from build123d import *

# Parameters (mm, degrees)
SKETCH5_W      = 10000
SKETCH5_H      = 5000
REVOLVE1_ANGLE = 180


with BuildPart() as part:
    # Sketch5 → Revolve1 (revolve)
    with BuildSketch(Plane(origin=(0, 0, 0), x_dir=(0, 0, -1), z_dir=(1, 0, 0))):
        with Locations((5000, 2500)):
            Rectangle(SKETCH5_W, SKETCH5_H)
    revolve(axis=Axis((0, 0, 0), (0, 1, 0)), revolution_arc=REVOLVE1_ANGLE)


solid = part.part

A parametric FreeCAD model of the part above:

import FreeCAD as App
import Part
import Sketcher
from FreeCAD import Vector

doc = App.newDocument("Part")
body = doc.addObject("PartDesign::Body", "Body")

# Sketch on YZ plane
sketch1 = body.newObject("Sketcher::SketchObject", "Sketch")
sketch1.AttachmentSupport = (doc.getObject("YZ_Plane"), [""])
sketch1.MapMode = "FlatFace"
sketch1.addGeometry([
    Part.LineSegment(Vector(5000, 0, 0), Vector(0, 0, 0)),
    Part.LineSegment(Vector(0, 0, 0), Vector(0, -10000, 0)),
    Part.LineSegment(Vector(0, -10000, 0), Vector(5000, -10000, 0)),
    Part.LineSegment(Vector(5000, -10000, 0), Vector(5000, 0, 0)),
], False)
sketch1.addConstraint([
    Sketcher.Constraint("Coincident", 0, 2, 1, 1),
    Sketcher.Constraint("Coincident", 1, 2, 2, 1),
    Sketcher.Constraint("Coincident", 2, 2, 3, 1),
    Sketcher.Constraint("Coincident", 3, 2, 0, 1),
    Sketcher.Constraint("Horizontal", 0),
    Sketcher.Constraint("Vertical", 1),
    Sketcher.Constraint("Horizontal", 2),
    Sketcher.Constraint("Vertical", 3),
    Sketcher.Constraint("Coincident", 0, 2, -1, 1),
    Sketcher.Constraint("DistanceX", 0, 2, 0, 1, 5000.0),
    Sketcher.Constraint("DistanceY", 1, 2, 1, 1, 10000.0),
])
revolution = body.newObject("PartDesign::Revolution", "Revolution")
revolution.Profile = sketch1
revolution.ReferenceAxis = (sketch1, ["H_Axis"])
revolution.Angle = 180

doc.recompute()
